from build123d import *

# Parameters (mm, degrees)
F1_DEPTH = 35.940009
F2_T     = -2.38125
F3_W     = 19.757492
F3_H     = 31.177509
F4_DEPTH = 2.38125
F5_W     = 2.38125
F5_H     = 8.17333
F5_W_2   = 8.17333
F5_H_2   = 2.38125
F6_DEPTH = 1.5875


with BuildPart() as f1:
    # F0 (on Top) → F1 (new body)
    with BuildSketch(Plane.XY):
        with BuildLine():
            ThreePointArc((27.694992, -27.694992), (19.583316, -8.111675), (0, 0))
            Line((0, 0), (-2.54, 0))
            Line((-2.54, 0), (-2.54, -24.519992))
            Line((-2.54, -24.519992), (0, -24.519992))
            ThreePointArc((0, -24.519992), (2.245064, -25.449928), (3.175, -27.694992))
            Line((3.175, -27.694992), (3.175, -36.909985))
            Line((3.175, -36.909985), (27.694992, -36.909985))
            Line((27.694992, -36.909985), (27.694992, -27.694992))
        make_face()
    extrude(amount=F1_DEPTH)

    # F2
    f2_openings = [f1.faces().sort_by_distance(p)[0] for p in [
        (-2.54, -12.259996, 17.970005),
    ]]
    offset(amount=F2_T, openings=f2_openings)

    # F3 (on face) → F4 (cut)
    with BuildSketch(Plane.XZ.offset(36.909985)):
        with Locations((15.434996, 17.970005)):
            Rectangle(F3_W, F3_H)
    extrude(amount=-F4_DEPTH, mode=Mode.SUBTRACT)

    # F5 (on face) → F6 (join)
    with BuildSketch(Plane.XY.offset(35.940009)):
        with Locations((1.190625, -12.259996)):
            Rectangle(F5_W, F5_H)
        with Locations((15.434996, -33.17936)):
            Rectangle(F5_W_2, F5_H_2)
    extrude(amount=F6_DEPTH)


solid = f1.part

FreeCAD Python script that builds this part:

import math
import FreeCAD as App
import Part
import Sketcher
from FreeCAD import Vector
Q = App.Units.Quantity


def faces_at(feature, points):
    """Names of the faces that lie closest to the given points."""
    faces = feature.Shape.Faces
    near = lambda p: min(range(len(faces)), key=lambda i: faces[i].distToShape(Part.Vertex(*p))[0])
    return sorted({f"Face{near(p) + 1}" for p in points})


def add_polygon(sketch, points):
    """Adds a closed chain of lines whose ends are joined by coincident constraints."""
    first, n = sketch.GeometryCount, len(points)
    for a, b in zip(points, points[1:] + points[:1]):
        sketch.addGeometry(Part.LineSegment(App.Vector(*a, 0), App.Vector(*b, 0)), False)
    for i in range(n):
        sketch.addConstraint(Sketcher.Constraint("Coincident", first + i, 2, first + (i + 1) % n, 1))

doc = App.newDocument("Part")
body = doc.addObject("PartDesign::Body", "Body")

# Sketch on XY plane
sketch1 = body.newObject("Sketcher::SketchObject", "Sketch")
sketch1.AttachmentSupport = (doc.getObject("XY_Plane"), [""])
sketch1.MapMode = "FlatFace"
sketch1.addGeometry([
    Part.ArcOfCircle(Part.Circle(Vector(0, -27.7, 0), Vector(0, 0, 1), 27.7), math.radians(0), math.radians(90)),  # 0
    Part.LineSegment(Vector(0, 0, 0), Vector(-2.5, 0, 0)),  # 1
    Part.LineSegment(Vector(-2.5, 0, 0), Vector(-2.5, -24.5, 0)),  # 2
    Part.LineSegment(Vector(-2.5, -24.5, 0), Vector(0, -24.5, 0)),  # 3
    Part.ArcOfCircle(Part.Circle(Vector(0, -27.7, 0), Vector(0, 0, 1), 3.2), math.radians(0), math.radians(90)),  # 4
    Part.LineSegment(Vector(3.2, -27.7, 0), Vector(3.2, -36.9, 0)),  # 5
    Part.LineSegment(Vector(3.2, -36.9, 0), Vector(27.7, -36.9, 0)),  # 6
    Part.LineSegment(Vector(27.7, -36.9, 0), Vector(27.7, -27.7, 0)),  # 7
], False)
sketch1.addConstraint([
    Sketcher.Constraint("Tangent", 0, 2, 1, 1),
    Sketcher.Constraint("Coincident", 1, 2, 2, 1),
    Sketcher.Constraint("Coincident", 2, 2, 3, 1),
    Sketcher.Constraint("Tangent", 3, 2, 4, 2),
    Sketcher.Constraint("Tangent", 4, 1, 5, 1),
    Sketcher.Constraint("Coincident", 5, 2, 6, 1),
    Sketcher.Constraint("Coincident", 6, 2, 7, 1),
    Sketcher.Constraint("Tangent", 7, 2, 0, 1),
    Sketcher.Constraint("Horizontal", 1),
    Sketcher.Constraint("Vertical", 2),
    Sketcher.Constraint("Horizontal", 3),
    Sketcher.Constraint("Vertical", 5),
    Sketcher.Constraint("Horizontal", 6),
    Sketcher.Constraint("Vertical", 7),
    Sketcher.Constraint("Coincident", 0, 2, -1, 1),
    Sketcher.Constraint("Coincident", 4, 3, 0, 3),
    Sketcher.Constraint("DistanceX", 1, 2, 1, 1, Q("0.1 in")),
    Sketcher.Constraint("Radius", 4, Q("0.125 in")),
    Sketcher.Constraint("Radius", 0, Q("27.694993 mm")),
    Sketcher.Constraint("DistanceY", 5, 2, 5, 1, Q("9.214993 mm")),
])
pad1 = body.newObject("PartDesign::Pad", "Pad")
pad1.Profile = sketch1
pad1.Length = 35.940009
doc.recompute()

thickness = body.newObject("PartDesign::Thickness", "Thickness")
thickness.Base = (pad1, faces_at(pad1, [(-2.54, -12.26, 17.97)]))
thickness.Value = Q("0.09375 in")
thickness.Reversed = True
thickness.Join = "Arc"

# Sketch on XZ plane
sketch2 = body.newObject("Sketcher::SketchObject", "Sketch001")
sketch2.AttachmentSupport = (doc.getObject("XZ_Plane"), [""])
sketch2.MapMode = "FlatFace"
sketch2.AttachmentOffset = App.Placement(Vector(0, 0, 36.909985), App.Rotation())
add_polygon(sketch2, [(6, 34), (6, 2), (25, 2), (25, 34)])  # lines 0-3
sketch2.addConstraint([
    Sketcher.Constraint("Vertical", 0),
    Sketcher.Constraint("Horizontal", 1),
    Sketcher.Constraint("Vertical", 2),
    Sketcher.Constraint("Horizontal", 3),
    Sketcher.Constraint("DistanceX", -1, 1, 0, 2, Q("0.21875 in")),
    Sketcher.Constraint("DistanceY", -1, 1, 0, 2, Q("0.09375 in")),
    Sketcher.Constraint("DistanceX", 1, 1, 1, 2, Q("19.757492 mm")),
    Sketcher.Constraint("DistanceY", 0, 2, 0, 1, Q("31.177509 mm")),
])
pocket1 = body.newObject("PartDesign::Pocket", "Pocket")
pocket1.Profile = sketch2
pocket1.Length = Q("0.09375 in")

# Sketch on XY plane
sketch3 = body.newObject("Sketcher::SketchObject", "Sketch002")
sketch3.AttachmentSupport = (doc.getObject("XY_Plane"), [""])
sketch3.MapMode = "FlatFace"
sketch3.AttachmentOffset = App.Placement(Vector(0, 0, 35.940009), App.Rotation())
add_polygon(sketch3, [(0, -8.2), (0, -16.3), (2.4, -16.3), (2.4, -8.2)])  # lines 0-3
add_polygon(sketch3, [(11.3, -32), (11.3, -34.4), (19.5, -34.4), (19.5, -32)])  # lines 4-7
sketch3.addConstraint([
    Sketcher.Constraint("Vertical", 0),
    Sketcher.Constraint("Horizontal", 1),
    Sketcher.Constraint("Vertical", 2),
    Sketcher.Constraint("Horizontal", 3),
    Sketcher.Constraint("Vertical", 4),
    Sketcher.Constraint("Horizontal", 5),
    Sketcher.Constraint("Vertical", 6),
    Sketcher.Constraint("Horizontal", 7),
    Sketcher.Constraint("PointOnObject", 0, 2, -2),
    Sketcher.Constraint("Equal", 7, 0),
    Sketcher.Constraint("Equal", 3, 4),
    Sketcher.Constraint("DistanceX", 1, 1, 1, 2, Q("0.09375 in")),
    Sketcher.Constraint("DistanceX", 5, 1, 5, 2, Q("8.17333 mm")),
    Sketcher.Constraint("DistanceY", 0, 2, -1, 1, Q("16.346661 mm")),
    Sketcher.Constraint("DistanceX", -1, 1, 4, 2, Q("11.348331 mm")),
    Sketcher.Constraint("DistanceY", 4, 2, -1, 1, Q("34.369985 mm")),
])
pad2 = body.newObject("PartDesign::Pad", "Pad001")
pad2.Profile = sketch3
pad2.Length = Q("0.0625 in")

doc.recompute()
